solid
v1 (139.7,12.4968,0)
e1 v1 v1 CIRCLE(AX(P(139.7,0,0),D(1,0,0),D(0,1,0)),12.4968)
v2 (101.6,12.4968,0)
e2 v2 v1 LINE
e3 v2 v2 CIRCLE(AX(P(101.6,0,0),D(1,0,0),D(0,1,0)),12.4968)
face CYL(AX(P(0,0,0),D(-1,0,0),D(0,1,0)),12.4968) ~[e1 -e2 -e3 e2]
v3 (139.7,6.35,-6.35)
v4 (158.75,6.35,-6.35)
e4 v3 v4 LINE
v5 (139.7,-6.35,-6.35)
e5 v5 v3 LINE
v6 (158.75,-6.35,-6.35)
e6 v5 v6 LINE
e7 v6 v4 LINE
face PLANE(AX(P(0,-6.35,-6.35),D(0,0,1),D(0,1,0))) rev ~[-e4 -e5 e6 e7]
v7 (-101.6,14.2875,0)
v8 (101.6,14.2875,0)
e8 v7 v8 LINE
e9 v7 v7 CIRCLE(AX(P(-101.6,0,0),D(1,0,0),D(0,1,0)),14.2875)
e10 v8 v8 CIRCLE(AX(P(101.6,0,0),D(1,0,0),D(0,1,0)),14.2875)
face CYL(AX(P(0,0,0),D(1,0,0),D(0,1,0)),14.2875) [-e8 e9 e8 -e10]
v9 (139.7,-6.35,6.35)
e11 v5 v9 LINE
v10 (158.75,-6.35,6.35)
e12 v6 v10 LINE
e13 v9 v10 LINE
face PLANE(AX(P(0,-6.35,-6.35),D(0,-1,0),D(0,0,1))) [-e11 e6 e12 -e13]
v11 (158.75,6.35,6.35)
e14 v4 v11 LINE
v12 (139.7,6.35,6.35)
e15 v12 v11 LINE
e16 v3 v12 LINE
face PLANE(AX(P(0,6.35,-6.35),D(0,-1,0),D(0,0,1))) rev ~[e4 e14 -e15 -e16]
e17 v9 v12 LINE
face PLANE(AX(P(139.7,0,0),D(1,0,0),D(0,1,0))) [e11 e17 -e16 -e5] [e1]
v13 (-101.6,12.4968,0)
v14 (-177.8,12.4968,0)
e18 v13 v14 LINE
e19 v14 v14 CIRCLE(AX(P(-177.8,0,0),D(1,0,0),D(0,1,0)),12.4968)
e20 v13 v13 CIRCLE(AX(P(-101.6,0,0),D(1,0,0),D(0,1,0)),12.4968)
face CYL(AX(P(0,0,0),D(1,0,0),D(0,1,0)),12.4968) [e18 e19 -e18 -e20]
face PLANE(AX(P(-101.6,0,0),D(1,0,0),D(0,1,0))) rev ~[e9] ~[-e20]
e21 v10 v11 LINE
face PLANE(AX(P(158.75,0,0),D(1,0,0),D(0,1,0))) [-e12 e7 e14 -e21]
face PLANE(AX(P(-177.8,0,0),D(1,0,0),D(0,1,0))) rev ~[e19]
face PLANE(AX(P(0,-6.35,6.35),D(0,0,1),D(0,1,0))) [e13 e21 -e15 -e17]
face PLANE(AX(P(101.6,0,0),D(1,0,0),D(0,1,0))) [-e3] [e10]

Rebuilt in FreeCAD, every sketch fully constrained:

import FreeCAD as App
import Part
import Sketcher

V = App.Vector
Q = App.Units.Quantity


def add_polygon(sketch, points):
    """Adds a closed chain of lines whose ends are joined by coincident constraints."""
    first, n = sketch.GeometryCount, len(points)
    for a, b in zip(points, points[1:] + points[:1]):
        sketch.addGeometry(Part.LineSegment(App.Vector(*a, 0), App.Vector(*b, 0)), False)
    for i in range(n):
        sketch.addConstraint(Sketcher.Constraint("Coincident", first + i, 2, first + (i + 1) % n, 1))

doc = App.newDocument("Part")
body = doc.addObject("PartDesign::Body", "Body")

# Sketch on YZ plane
sketch1 = doc.addObject("Sketcher::SketchObject", "Sketch")
body.addObject(sketch1)
sketch1.AttachmentSupport = (doc.YZ_Plane, [""])
sketch1.MapMode = "FlatFace"
sketch1.addGeometry([
    Part.Circle(V(0, 0, 0), V(0, 0, 1), 14.2875),
    Part.Circle(V(0, 0, 0), V(0, 0, 1), 12.4968),
], False)
sketch1.addConstraint([
    Sketcher.Constraint("Coincident", 0, 3, -1, 1),
    Sketcher.Constraint("Coincident", 1, 3, -1, 1),
    Sketcher.Constraint("Diameter", 0, Q("1.125 in")),
    Sketcher.Constraint("Diameter", 1, Q("0.984 in")),
])
pad1 = doc.addObject("PartDesign::Pad", "Pad")
body.addObject(pad1)
pad1.Profile = sketch1
pad1.Type = "TwoLengths"
pad1.Length = Q("4 in")
pad1.Length2 = Q("4 in")

# Sketch on YZ plane
sketch2 = doc.addObject("Sketcher::SketchObject", "Sketch001")
body.addObject(sketch2)
sketch2.AttachmentSupport = (doc.YZ_Plane, [""])
sketch2.MapMode = "FlatFace"
sketch2.addGeometry(Part.Circle(V(0, 0, 0), V(0, 0, 1), 12.4968), False)  # 0
add_polygon(sketch2, [(6.35, -6.35), (-6.35, -6.35), (-6.35, 6.35), (6.35, 6.35)])  # lines 1-4
sketch2.addConstraint([
    Sketcher.Constraint("Horizontal", 1),
    Sketcher.Constraint("Vertical", 2),
    Sketcher.Constraint("Horizontal", 3),
    Sketcher.Constraint("Vertical", 4),
    Sketcher.Constraint("Coincident", 0, 3, -1, 1),
    Sketcher.Constraint("Symmetric", 1, 2, 3, 2, -1, 1),
    Sketcher.Constraint("Equal", 3, 2),
    Sketcher.Constraint("Diameter", 0, Q("0.984 in")),
    Sketcher.Constraint("DistanceX", 1, 2, 1, 1, Q("0.5 in")),
])
pad2 = doc.addObject("PartDesign::Pad", "Pad001")
body.addObject(pad2)
pad2.Profile = sketch2
pad2.Type = "TwoLengths"
pad2.Length = Q("5.5 in")
pad2.Length2 = Q("7 in")

# Sketch on YZ plane
sketch3 = doc.addObject("Sketcher::SketchObject", "Sketch002")
body.addObject(sketch3)
sketch3.AttachmentSupport = (doc.YZ_Plane, [""])
sketch3.MapMode = "FlatFace"
add_polygon(sketch3, [(-6.35, 6.35), (-6.35, -6.35), (6.35, -6.35), (6.35, 6.35)])  # lines 0-3
sketch3.addConstraint([
    Sketcher.Constraint("Vertical", 0),
    Sketcher.Constraint("Horizontal", 1),
    Sketcher.Constraint("Vertical", 2),
    Sketcher.Constraint("Horizontal", 3),
    Sketcher.Constraint("Symmetric", 0, 2, 2, 2, -1, 1),
    Sketcher.Constraint("Equal", 3, 0),
    Sketcher.Constraint("DistanceX", 1, 1, 1, 2, Q("0.5 in")),
])
pad3 = doc.addObject("PartDesign::Pad", "Pad002")
body.addObject(pad3)
pad3.Profile = sketch3
pad3.Type = "TwoLengths"
pad3.Length = Q("6.25 in")
pad3.Length2 = Q("7 in")

doc.recompute()
